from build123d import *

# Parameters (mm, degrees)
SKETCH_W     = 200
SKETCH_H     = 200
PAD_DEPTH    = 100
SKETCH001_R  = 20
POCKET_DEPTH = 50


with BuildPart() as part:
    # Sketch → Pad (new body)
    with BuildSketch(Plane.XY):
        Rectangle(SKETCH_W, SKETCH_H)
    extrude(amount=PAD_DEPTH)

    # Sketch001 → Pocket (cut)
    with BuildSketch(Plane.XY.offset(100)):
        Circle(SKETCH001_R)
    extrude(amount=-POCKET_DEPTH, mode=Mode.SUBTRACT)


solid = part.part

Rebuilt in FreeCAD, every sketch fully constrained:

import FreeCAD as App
import Part
import Sketcher
Q = App.Units.Quantity

doc = App.newDocument("Part")
body = doc.addObject("PartDesign::Body", "Body")

sketch1 = body.newObject("Sketcher::SketchObject", "Sketch")
sketch1.AttachmentSupport = (doc.getObject("XY_Plane"), [""])
sketch1.MapMode = "FlatFace"
sketch1.addGeometry([
    Part.LineSegment(App.Vector(-100, 100, 0), App.Vector(-100, -100, 0)),
    Part.LineSegment(App.Vector(-100, -100, 0), App.Vector(100, -100, 0)),
    Part.LineSegment(App.Vector(100, -100, 0), App.Vector(100, 100, 0)),
    Part.LineSegment(App.Vector(100, 100, 0), App.Vector(-100, 100, 0)),
], False)
sketch1.addConstraint([
    Sketcher.Constraint("Coincident", 0, 2, 1, 1),
    Sketcher.Constraint("Coincident", 1, 2, 2, 1),
    Sketcher.Constraint("Coincident", 2, 2, 3, 1),
    Sketcher.Constraint("Coincident", 3, 2, 0, 1),
    Sketcher.Constraint("Vertical", 0),
    Sketcher.Constraint("Horizontal", 1),
    Sketcher.Constraint("Vertical", 2),
    Sketcher.Constraint("Horizontal", 3),
    Sketcher.Constraint("Symmetric", 0, 2, 2, 2, -1, 1),
    Sketcher.Constraint("Equal", 3, 0),
    Sketcher.Constraint("DistanceX", 1, 1, 1, 2, Q("200 mm")),
])
pad1 = body.newObject("PartDesign::Pad", "Pad")
pad1.Profile = sketch1
pad1.Length = 100

sketch2 = body.newObject("Sketcher::SketchObject", "Sketch001")
sketch2.AttachmentSupport = (doc.getObject("XY_Plane"), [""])
sketch2.MapMode = "FlatFace"
sketch2.AttachmentOffset = App.Placement(App.Vector(0, 0, 100), App.Rotation())
sketch2.addGeometry(Part.Circle(App.Vector(0, 0, 0), App.Vector(0, 0, 1), 20), False)
sketch2.addConstraint([
    Sketcher.Constraint("Coincident", 0, 3, -1, 1),
    Sketcher.Constraint("Diameter", 0, Q("40 mm")),
])
pocket1 = body.newObject("PartDesign::Pocket", "Pocket")
pocket1.Profile = sketch2
pocket1.Length = 50

doc.recompute()
